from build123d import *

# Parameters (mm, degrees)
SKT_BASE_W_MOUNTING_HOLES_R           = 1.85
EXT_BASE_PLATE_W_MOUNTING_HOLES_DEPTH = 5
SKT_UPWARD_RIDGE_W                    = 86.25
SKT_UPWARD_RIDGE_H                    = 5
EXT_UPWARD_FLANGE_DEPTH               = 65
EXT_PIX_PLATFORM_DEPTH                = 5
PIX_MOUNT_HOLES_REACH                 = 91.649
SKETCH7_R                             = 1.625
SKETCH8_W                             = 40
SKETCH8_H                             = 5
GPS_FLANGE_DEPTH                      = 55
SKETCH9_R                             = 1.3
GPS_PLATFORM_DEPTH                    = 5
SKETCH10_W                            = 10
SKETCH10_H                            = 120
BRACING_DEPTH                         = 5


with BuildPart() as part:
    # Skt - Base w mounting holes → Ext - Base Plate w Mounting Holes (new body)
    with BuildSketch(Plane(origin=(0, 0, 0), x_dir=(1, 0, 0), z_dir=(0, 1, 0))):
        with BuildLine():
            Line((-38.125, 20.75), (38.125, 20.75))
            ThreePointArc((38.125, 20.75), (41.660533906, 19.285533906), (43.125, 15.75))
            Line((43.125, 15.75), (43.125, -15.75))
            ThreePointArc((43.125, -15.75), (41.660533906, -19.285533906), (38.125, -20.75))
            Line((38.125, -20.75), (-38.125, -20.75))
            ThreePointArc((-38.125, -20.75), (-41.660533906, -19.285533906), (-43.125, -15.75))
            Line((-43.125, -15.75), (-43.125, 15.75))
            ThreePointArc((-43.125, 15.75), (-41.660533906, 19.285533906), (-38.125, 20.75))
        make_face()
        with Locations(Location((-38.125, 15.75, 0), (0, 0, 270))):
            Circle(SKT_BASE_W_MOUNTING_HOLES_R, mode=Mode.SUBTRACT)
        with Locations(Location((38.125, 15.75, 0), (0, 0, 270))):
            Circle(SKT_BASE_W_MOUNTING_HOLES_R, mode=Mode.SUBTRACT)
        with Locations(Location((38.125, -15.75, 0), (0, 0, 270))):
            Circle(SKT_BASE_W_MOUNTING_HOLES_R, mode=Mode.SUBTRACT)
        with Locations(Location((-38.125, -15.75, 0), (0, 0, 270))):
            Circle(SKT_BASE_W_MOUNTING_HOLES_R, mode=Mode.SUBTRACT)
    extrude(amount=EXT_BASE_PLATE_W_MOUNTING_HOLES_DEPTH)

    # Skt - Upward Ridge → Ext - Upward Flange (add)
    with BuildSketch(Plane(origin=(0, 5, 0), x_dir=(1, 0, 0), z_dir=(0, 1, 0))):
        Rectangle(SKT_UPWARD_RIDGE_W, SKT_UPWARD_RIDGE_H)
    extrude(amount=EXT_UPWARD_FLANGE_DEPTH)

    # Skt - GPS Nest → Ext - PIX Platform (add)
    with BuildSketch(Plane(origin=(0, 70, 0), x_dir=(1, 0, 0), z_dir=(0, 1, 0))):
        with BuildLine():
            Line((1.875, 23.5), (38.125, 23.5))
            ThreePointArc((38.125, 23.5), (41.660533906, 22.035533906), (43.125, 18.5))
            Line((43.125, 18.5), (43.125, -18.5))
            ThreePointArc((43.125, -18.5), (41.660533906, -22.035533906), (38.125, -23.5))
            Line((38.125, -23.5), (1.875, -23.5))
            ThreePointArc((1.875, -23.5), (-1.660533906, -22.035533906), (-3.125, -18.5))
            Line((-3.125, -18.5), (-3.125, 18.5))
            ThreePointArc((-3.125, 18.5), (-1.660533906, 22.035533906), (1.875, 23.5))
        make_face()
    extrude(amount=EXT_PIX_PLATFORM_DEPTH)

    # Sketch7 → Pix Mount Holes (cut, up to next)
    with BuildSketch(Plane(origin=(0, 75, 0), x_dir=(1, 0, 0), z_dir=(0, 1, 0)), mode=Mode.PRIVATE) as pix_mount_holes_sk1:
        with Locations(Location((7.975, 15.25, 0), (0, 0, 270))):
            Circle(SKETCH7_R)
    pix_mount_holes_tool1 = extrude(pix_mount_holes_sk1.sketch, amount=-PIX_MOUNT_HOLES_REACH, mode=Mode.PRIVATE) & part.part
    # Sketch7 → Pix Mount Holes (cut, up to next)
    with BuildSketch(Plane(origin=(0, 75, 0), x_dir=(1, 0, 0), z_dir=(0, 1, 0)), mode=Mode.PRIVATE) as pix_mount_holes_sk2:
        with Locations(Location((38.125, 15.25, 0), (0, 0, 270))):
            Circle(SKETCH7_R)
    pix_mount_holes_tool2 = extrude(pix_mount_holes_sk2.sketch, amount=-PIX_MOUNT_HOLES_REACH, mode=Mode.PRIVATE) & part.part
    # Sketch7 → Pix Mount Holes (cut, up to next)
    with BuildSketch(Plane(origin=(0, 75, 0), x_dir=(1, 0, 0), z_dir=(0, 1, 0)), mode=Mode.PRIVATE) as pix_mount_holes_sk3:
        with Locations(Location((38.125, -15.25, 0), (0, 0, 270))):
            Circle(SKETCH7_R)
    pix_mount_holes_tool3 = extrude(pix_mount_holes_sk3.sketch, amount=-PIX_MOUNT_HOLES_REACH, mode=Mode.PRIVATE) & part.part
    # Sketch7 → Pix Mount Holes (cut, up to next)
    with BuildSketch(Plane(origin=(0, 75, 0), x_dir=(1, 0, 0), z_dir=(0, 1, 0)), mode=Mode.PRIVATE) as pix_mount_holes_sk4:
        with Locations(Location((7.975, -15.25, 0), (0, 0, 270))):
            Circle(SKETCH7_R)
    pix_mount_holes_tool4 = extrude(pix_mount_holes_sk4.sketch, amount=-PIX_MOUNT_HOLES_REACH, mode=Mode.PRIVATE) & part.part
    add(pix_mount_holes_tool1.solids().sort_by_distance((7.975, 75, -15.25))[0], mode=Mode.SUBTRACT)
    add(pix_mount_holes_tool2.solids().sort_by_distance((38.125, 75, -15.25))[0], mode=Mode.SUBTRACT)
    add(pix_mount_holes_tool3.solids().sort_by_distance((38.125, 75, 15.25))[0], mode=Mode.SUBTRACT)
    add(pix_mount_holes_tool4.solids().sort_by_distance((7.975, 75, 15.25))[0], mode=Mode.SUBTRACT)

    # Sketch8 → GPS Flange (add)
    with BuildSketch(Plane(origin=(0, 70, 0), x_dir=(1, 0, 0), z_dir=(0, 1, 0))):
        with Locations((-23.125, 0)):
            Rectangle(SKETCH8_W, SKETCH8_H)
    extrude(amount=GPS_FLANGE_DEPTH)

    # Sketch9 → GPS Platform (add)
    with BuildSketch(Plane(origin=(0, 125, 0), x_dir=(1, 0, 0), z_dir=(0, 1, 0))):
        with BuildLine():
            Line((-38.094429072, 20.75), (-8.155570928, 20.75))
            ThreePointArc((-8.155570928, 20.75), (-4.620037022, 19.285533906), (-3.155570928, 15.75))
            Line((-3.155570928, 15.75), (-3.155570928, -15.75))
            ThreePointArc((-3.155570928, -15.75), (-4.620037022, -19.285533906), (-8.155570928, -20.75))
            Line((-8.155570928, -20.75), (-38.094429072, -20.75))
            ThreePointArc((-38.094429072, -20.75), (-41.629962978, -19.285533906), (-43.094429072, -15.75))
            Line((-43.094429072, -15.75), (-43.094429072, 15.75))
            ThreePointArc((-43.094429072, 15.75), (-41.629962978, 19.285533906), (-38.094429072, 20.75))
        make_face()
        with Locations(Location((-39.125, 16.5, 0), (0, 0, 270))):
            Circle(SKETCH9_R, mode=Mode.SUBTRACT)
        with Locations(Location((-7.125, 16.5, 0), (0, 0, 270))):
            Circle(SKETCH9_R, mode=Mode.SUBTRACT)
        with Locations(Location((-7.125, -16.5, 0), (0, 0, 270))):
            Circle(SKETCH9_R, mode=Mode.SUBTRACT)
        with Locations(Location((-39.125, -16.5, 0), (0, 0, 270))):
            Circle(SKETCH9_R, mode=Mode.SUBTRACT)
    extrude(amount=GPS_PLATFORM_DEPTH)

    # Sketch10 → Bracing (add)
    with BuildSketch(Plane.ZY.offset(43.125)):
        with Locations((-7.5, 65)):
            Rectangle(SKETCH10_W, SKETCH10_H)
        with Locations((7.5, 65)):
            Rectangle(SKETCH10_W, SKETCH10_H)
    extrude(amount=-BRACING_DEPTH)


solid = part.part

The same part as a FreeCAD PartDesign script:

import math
import FreeCAD as App
import Part
import Sketcher
Q = App.Units.Quantity

doc = App.newDocument("Part")
body = doc.addObject("PartDesign::Body", "Body")

sketch1 = body.newObject("Sketcher::SketchObject", "Sketch")
sketch1.AttachmentSupport = (doc.getObject("XZ_Plane"), [""])
sketch1.MapMode = "FlatFace"
sketch1.addGeometry([
    Part.LineSegment(App.Vector(38.1, -20.8, 0), App.Vector(-38.1, -20.8, 0)),
    Part.ArcOfCircle(Part.Circle(App.Vector(-38.1, -15.8, 0), App.Vector(0, 0, 1), 5), math.radians(180), math.radians(270)),
    Part.LineSegment(App.Vector(-43.1, -15.8, 0), App.Vector(-43.1, 15.8, 0)),
    Part.ArcOfCircle(Part.Circle(App.Vector(-38.1, 15.8, 0), App.Vector(0, 0, 1), 5), math.radians(90), math.radians(180)),
    Part.LineSegment(App.Vector(-38.1, 20.8, 0), App.Vector(38.1, 20.8, 0)),
    Part.ArcOfCircle(Part.Circle(App.Vector(38.1, 15.8, 0), App.Vector(0, 0, 1), 5), math.radians(0), math.radians(90)),
    Part.LineSegment(App.Vector(43.1, 15.8, 0), App.Vector(43.1, -15.8, 0)),
    Part.ArcOfCircle(Part.Circle(App.Vector(38.1, -15.8, 0), App.Vector(0, 0, 1), 5), math.radians(-90), math.radians(0)),
    Part.Circle(App.Vector(38.1, 15.8, 0), App.Vector(0, 0, 1), 1.9),
    Part.Circle(App.Vector(-38.1, 15.8, 0), App.Vector(0, 0, 1), 1.9),
    Part.Circle(App.Vector(38.1, -15.8, 0), App.Vector(0, 0, 1), 1.9),
    Part.Circle(App.Vector(-38.1, -15.8, 0), App.Vector(0, 0, 1), 1.9),
], False)
sketch1.addConstraint([
    Sketcher.Constraint("Tangent", 0, 2, 1, 2),
    Sketcher.Constraint("Tangent", 1, 1, 2, 1),
    Sketcher.Constraint("Tangent", 2, 2, 3, 2),
    Sketcher.Constraint("Tangent", 3, 1, 4, 1),
    Sketcher.Constraint("Tangent", 4, 2, 5, 2),
    Sketcher.Constraint("Tangent", 5, 1, 6, 1),
    Sketcher.Constraint("Tangent", 6, 2, 7, 2),
    Sketcher.Constraint("Tangent", 7, 1, 0, 1),
    Sketcher.Constraint("Horizontal", 0),
    Sketcher.Constraint("Vertical", 2),
    Sketcher.Constraint("Horizontal", 4),
    Sketcher.Constraint("Vertical", 6),
    Sketcher.Constraint("Coincident", 8, 3, 5, 3),
    Sketcher.Constraint("Coincident", 9, 3, 3, 3),
    Sketcher.Constraint("Coincident", 10, 3, 7, 3),
    Sketcher.Constraint("Coincident", 11, 3, 1, 3),
    Sketcher.Constraint("Equal", 1, 3),
    Sketcher.Constraint("Equal", 3, 5),
    Sketcher.Constraint("Equal", 5, 7),
    Sketcher.Constraint("Equal", 8, 9),
    Sketcher.Constraint("Equal", 9, 10),
    Sketcher.Constraint("Equal", 10, 11),
    Sketcher.Constraint("Symmetric", 1, 3, 5, 3, -1, 1),
    Sketcher.Constraint("Radius", 1, Q("5 mm")),
    Sketcher.Constraint("Diameter", 8, Q("3.7 mm")),
    Sketcher.Constraint("DistanceY", 2, 1, 2, 2, Q("31.5 mm")),
    Sketcher.Constraint("DistanceX", 0, 2, 0, 1, Q("76.25 mm")),
])
pad1 = body.newObject("PartDesign::Pad", "Pad")
pad1.Profile = sketch1
pad1.Length = 5
pad1.Reversed = True

sketch2 = body.newObject("Sketcher::SketchObject", "Sketch001")
sketch2.AttachmentSupport = (doc.getObject("XZ_Plane"), [""])
sketch2.MapMode = "FlatFace"
sketch2.AttachmentOffset = App.Placement(App.Vector(0, 0, -5), App.Rotation())
sketch2.addGeometry([
    Part.LineSegment(App.Vector(-43, -2, 0), App.Vector(-43, 2, 0)),
    Part.LineSegment(App.Vector(-43, 2, 0), App.Vector(43, 2, 0)),
    Part.LineSegment(App.Vector(43, 2, 0), App.Vector(43, -2, 0)),
    Part.LineSegment(App.Vector(43, -2, 0), App.Vector(-43, -2, 0)),
], False)
sketch2.addConstraint([
    Sketcher.Constraint("Coincident", 0, 2, 1, 1),
    Sketcher.Constraint("Coincident", 1, 2, 2, 1),
    Sketcher.Constraint("Coincident", 2, 2, 3, 1),
    Sketcher.Constraint("Coincident", 3, 2, 0, 1),
    Sketcher.Constraint("Vertical", 0),
    Sketcher.Constraint("Horizontal", 1),
    Sketcher.Constraint("Vertical", 2),
    Sketcher.Constraint("Horizontal", 3),
    Sketcher.Constraint("Symmetric", 0, 2, 2, 2, -1, 1),
    Sketcher.Constraint("DistanceY", 0, 1, 0, 2, Q("5 mm")),
    Sketcher.Constraint("DistanceX", 1, 1, 1, 2, Q("86.25 mm")),
])
pad2 = body.newObject("PartDesign::Pad", "Pad001")
pad2.Profile = sketch2
pad2.Length = 65
pad2.Reversed = True

sketch3 = body.newObject("Sketcher::SketchObject", "Sketch002")
sketch3.AttachmentSupport = (doc.getObject("XZ_Plane"), [""])
sketch3.MapMode = "FlatFace"
sketch3.AttachmentOffset = App.Placement(App.Vector(0, 0, -70), App.Rotation())
sketch3.addGeometry([
    Part.LineSegment(App.Vector(38, -24, 0), App.Vector(2, -24, 0)),
    Part.ArcOfCircle(Part.Circle(App.Vector(2, -18, 0), App.Vector(0, 0, 1), 5), math.radians(180), math.radians(270)),
    Part.LineSegment(App.Vector(-3, -18, 0), App.Vector(-3, 18, 0)),
    Part.ArcOfCircle(Part.Circle(App.Vector(2, 18, 0), App.Vector(0, 0, 1), 5), math.radians(90), math.radians(180)),
    Part.LineSegment(App.Vector(2, 24, 0), App.Vector(38, 24, 0)),
    Part.ArcOfCircle(Part.Circle(App.Vector(38, 18, 0), App.Vector(0, 0, 1), 5), math.radians(0), math.radians(90)),
    Part.LineSegment(App.Vector(43, 18, 0), App.Vector(43, -18, 0)),
    Part.ArcOfCircle(Part.Circle(App.Vector(38, -18, 0), App.Vector(0, 0, 1), 5), math.radians(-90), math.radians(0)),
], False)
sketch3.addConstraint([
    Sketcher.Constraint("Tangent", 0, 2, 1, 2),
    Sketcher.Constraint("Tangent", 1, 1, 2, 1),
    Sketcher.Constraint("Tangent", 2, 2, 3, 2),
    Sketcher.Constraint("Tangent", 3, 1, 4, 1),
    Sketcher.Constraint("Tangent", 4, 2, 5, 2),
    Sketcher.Constraint("Tangent", 5, 1, 6, 1),
    Sketcher.Constraint("Tangent", 6, 2, 7, 2),
    Sketcher.Constraint("Tangent", 7, 1, 0, 1),
    Sketcher.Constraint("Horizontal", 0),
    Sketcher.Constraint("Vertical", 2),
    Sketcher.Constraint("Horizontal", 4),
    Sketcher.Constraint("Vertical", 6),
    Sketcher.Constraint("Equal", 1, 3),
    Sketcher.Constraint("Equal", 3, 5),
    Sketcher.Constraint("Equal", 5, 7),
    Sketcher.Constraint("Radius", 1, Q("5 mm")),
    Sketcher.Constraint("DistanceY", 2, 1, 2, 2, Q("37 mm")),
    Sketcher.Constraint("DistanceX", 0, 2, 0, 1, Q("36.25 mm")),
    Sketcher.Constraint("DistanceY", 1, 3, -1, 1, Q("18.5 mm")),
    Sketcher.Constraint("DistanceX", -1, 1, 1, 3, Q("1.875 mm")),
])
pad3 = body.newObject("PartDesign::Pad", "Pad002")
pad3.Profile = sketch3
pad3.Length = 5
pad3.Reversed = True

sketch4 = body.newObject("Sketcher::SketchObject", "Sketch003")
sketch4.AttachmentSupport = (doc.getObject("XZ_Plane"), [""])
sketch4.MapMode = "FlatFace"
sketch4.AttachmentOffset = App.Placement(App.Vector(0, 0, -75), App.Rotation())
sketch4.addGeometry(Part.Circle(App.Vector(8, -15.2, 0), App.Vector(0, 0, 1), 1.6), False)
sketch4.addConstraint([
    Sketcher.Constraint("Diameter", 0, Q("3.25 mm")),
    Sketcher.Constraint("DistanceY", 0, 3, -1, 1, Q("15.25 mm")),
    Sketcher.Constraint("DistanceX", -1, 1, 0, 3, Q("7.975 mm")),
])
pocket1 = body.newObject("PartDesign::Pocket", "Pocket")
pocket1.Profile = sketch4
pocket1.Type = "UpToFirst"
pocket1.Reversed = True

sketch5 = body.newObject("Sketcher::SketchObject", "Sketch004")
sketch5.AttachmentSupport = (doc.getObject("XZ_Plane"), [""])
sketch5.MapMode = "FlatFace"
sketch5.AttachmentOffset = App.Placement(App.Vector(0, 0, -75), App.Rotation())
sketch5.addGeometry(Part.Circle(App.Vector(38.1, -15.2, 0), App.Vector(0, 0, 1), 1.6), False)
sketch5.addConstraint([
    Sketcher.Constraint("Diameter", 0, Q("3.25 mm")),
    Sketcher.Constraint("DistanceY", 0, 3, -1, 1, Q("15.25 mm")),
    Sketcher.Constraint("DistanceX", -1, 1, 0, 3, Q("38.125 mm")),
])
pocket2 = body.newObject("PartDesign::Pocket", "Pocket001")
pocket2.Profile = sketch5
pocket2.Type = "UpToFirst"
pocket2.Reversed = True

sketch6 = body.newObject("Sketcher::SketchObject", "Sketch005")
sketch6.AttachmentSupport = (doc.getObject("XZ_Plane"), [""])
sketch6.MapMode = "FlatFace"
sketch6.AttachmentOffset = App.Placement(App.Vector(0, 0, -75), App.Rotation())
sketch6.addGeometry(Part.Circle(App.Vector(38.1, 15.2, 0), App.Vector(0, 0, 1), 1.6), False)
sketch6.addConstraint([
    Sketcher.Constraint("Diameter", 0, Q("3.25 mm")),
    Sketcher.Constraint("DistanceY", -1, 1, 0, 3, Q("15.25 mm")),
    Sketcher.Constraint("DistanceX", -1, 1, 0, 3, Q("38.125 mm")),
])
pocket3 = body.newObject("PartDesign::Pocket", "Pocket002")
pocket3.Profile = sketch6
pocket3.Type = "UpToFirst"
pocket3.Reversed = True

sketch7 = body.newObject("Sketcher::SketchObject", "Sketch006")
sketch7.AttachmentSupport = (doc.getObject("XZ_Plane"), [""])
sketch7.MapMode = "FlatFace"
sketch7.AttachmentOffset = App.Placement(App.Vector(0, 0, -75), App.Rotation())
sketch7.addGeometry(Part.Circle(App.Vector(8, 15.2, 0), App.Vector(0, 0, 1), 1.6), False)
sketch7.addConstraint([
    Sketcher.Constraint("Diameter", 0, Q("3.25 mm")),
    Sketcher.Constraint("DistanceY", -1, 1, 0, 3, Q("15.25 mm")),
    Sketcher.Constraint("DistanceX", -1, 1, 0, 3, Q("7.975 mm")),
])
pocket4 = body.newObject("PartDesign::Pocket", "Pocket003")
pocket4.Profile = sketch7
pocket4.Type = "UpToFirst"
pocket4.Reversed = True

sketch8 = body.newObject("Sketcher::SketchObject", "Sketch007")
sketch8.AttachmentSupport = (doc.getObject("XZ_Plane"), [""])
sketch8.MapMode = "FlatFace"
sketch8.AttachmentOffset = App.Placement(App.Vector(0, 0, -70), App.Rotation())
sketch8.addGeometry([
    Part.LineSegment(App.Vector(-43, -2, 0), App.Vector(-43, 2, 0)),
    Part.LineSegment(App.Vector(-43, 2, 0), App.Vector(-3, 2, 0)),
    Part.LineSegment(App.Vector(-3, 2, 0), App.Vector(-3, -2, 0)),
    Part.LineSegment(App.Vector(-3, -2, 0), App.Vector(-43, -2, 0)),
], False)
sketch8.addConstraint([
    Sketcher.Constraint("Coincident", 0, 2, 1, 1),
    Sketcher.Constraint("Coincident", 1, 2, 2, 1),
    Sketcher.Constraint("Coincident", 2, 2, 3, 1),
    Sketcher.Constraint("Coincident", 3, 2, 0, 1),
    Sketcher.Constraint("Vertical", 0),
    Sketcher.Constraint("Horizontal", 1),
    Sketcher.Constraint("Vertical", 2),
    Sketcher.Constraint("Horizontal", 3),
    Sketcher.Constraint("DistanceX", 1, 1, 1, 2, Q("40 mm")),
    Sketcher.Constraint("DistanceY", 0, 1, 0, 2, Q("5 mm")),
    Sketcher.Constraint("DistanceY", -1, 1, 0, 2, Q("2.5 mm")),
    Sketcher.Constraint("DistanceX", 0, 2, -1, 1, Q("43.125 mm")),
])
pad4 = body.newObject("PartDesign::Pad", "Pad003")
pad4.Profile = sketch8
pad4.Length = 55
pad4.Reversed = True

sketch9 = body.newObject("Sketcher::SketchObject", "Sketch008")
sketch9.AttachmentSupport = (doc.getObject("XZ_Plane"), [""])
sketch9.MapMode = "FlatFace"
sketch9.AttachmentOffset = App.Placement(App.Vector(0, 0, -125), App.Rotation())
sketch9.addGeometry([
    Part.LineSegment(App.Vector(-8.2, -20.8, 0), App.Vector(-38.1, -20.8, 0)),
    Part.ArcOfCircle(Part.Circle(App.Vector(-38.1, -15.8, 0), App.Vector(0, 0, 1), 5), math.radians(180), math.radians(270)),
    Part.LineSegment(App.Vector(-43.1, -15.8, 0), App.Vector(-43.1, 15.8, 0)),
    Part.ArcOfCircle(Part.Circle(App.Vector(-38.1, 15.8, 0), App.Vector(0, 0, 1), 5), math.radians(90), math.radians(180)),
    Part.LineSegment(App.Vector(-38.1, 20.8, 0), App.Vector(-8.2, 20.8, 0)),
    Part.ArcOfCircle(Part.Circle(App.Vector(-8.2, 15.8, 0), App.Vector(0, 0, 1), 5), math.radians(0), math.radians(90)),
    Part.LineSegment(App.Vector(-3.2, 15.8, 0), App.Vector(-3.2, -15.8, 0)),
    Part.ArcOfCircle(Part.Circle(App.Vector(-8.2, -15.8, 0), App.Vector(0, 0, 1), 5), math.radians(-90), math.radians(0)),
    Part.Circle(App.Vector(-7.1, 16.5, 0), App.Vector(0, 0, 1), 1.3),
    Part.Circle(App.Vector(-39.1, 16.5, 0), App.Vector(0, 0, 1), 1.3),
    Part.Circle(App.Vector(-7.1, -16.5, 0), App.Vector(0, 0, 1), 1.3),
    Part.Circle(App.Vector(-39.1, -16.5, 0), App.Vector(0, 0, 1), 1.3),
], False)
sketch9.addConstraint([
    Sketcher.Constraint("Tangent", 0, 2, 1, 2),
    Sketcher.Constraint("Tangent", 1, 1, 2, 1),
    Sketcher.Constraint("Tangent", 2, 2, 3, 2),
    Sketcher.Constraint("Tangent", 3, 1, 4, 1),
    Sketcher.Constraint("Tangent", 4, 2, 5, 2),
    Sketcher.Constraint("Tangent", 5, 1, 6, 1),
    Sketcher.Constraint("Tangent", 6, 2, 7, 2),
    Sketcher.Constraint("Tangent", 7, 1, 0, 1),
    Sketcher.Constraint("Horizontal", 0),
    Sketcher.Constraint("Vertical", 2),
    Sketcher.Constraint("Horizontal", 4),
    Sketcher.Constraint("Vertical", 6),
    Sketcher.Constraint("Equal", 1, 3),
    Sketcher.Constraint("Equal", 3, 5),
    Sketcher.Constraint("Equal", 5, 7),
    Sketcher.Constraint("Equal", 8, 9),
    Sketcher.Constraint("Equal", 9, 10),
    Sketcher.Constraint("Equal", 10, 11),
    Sketcher.Constraint("Symmetric", 8, 3, 10, 3, -1),
    Sketcher.Constraint("Symmetric", 9, 3, 11, 3, -1),
    Sketcher.Constraint("Horizontal", 8, 3, 9, 3),
    Sketcher.Constraint("Radius", 1, Q("5 mm")),
    Sketcher.Constraint("Diameter", 8, Q("2.6 mm")),
    Sketcher.Constraint("DistanceY", 2, 1, 2, 2, Q("31.5 mm")),
    Sketcher.Constraint("DistanceX", 9, 3, 8, 3, Q("32 mm")),
    Sketcher.Constraint("DistanceY", 10, 3, 8, 3, Q("33 mm")),
    Sketcher.Constraint("DistanceY", 1, 3, -1, 1, Q("15.75 mm")),
    Sketcher.Constraint("DistanceX", 8, 3, -1, 1, Q("7.125 mm")),
    Sketcher.Constraint("DistanceX", 0, 2, 0, 1, Q("29.938858 mm")),
    Sketcher.Constraint("DistanceX", 1, 3, -1, 1, Q("38.094429 mm")),
])
pad5 = body.newObject("PartDesign::Pad", "Pad004")
pad5.Profile = sketch9
pad5.Length = 5
pad5.Reversed = True

sketch10 = body.newObject("Sketcher::SketchObject", "Sketch009")
sketch10.AttachmentSupport = (doc.getObject("YZ_Plane"), [""])
sketch10.MapMode = "FlatFace"
sketch10.AttachmentOffset = App.Placement(App.Vector(0, 0, -43.125), App.Rotation())
sketch10.addGeometry([
    Part.LineSegment(App.Vector(125, -12, 0), App.Vector(5, -12, 0)),
    Part.LineSegment(App.Vector(5, -12, 0), App.Vector(5, -2, 0)),
    Part.LineSegment(App.Vector(5, -2, 0), App.Vector(125, -2, 0)),
    Part.LineSegment(App.Vector(125, -2, 0), App.Vector(125, -12, 0)),
    Part.LineSegment(App.Vector(125, 2, 0), App.Vector(5, 2, 0)),
    Part.LineSegment(App.Vector(5, 2, 0), App.Vector(5, 12, 0)),
    Part.LineSegment(App.Vector(5, 12, 0), App.Vector(125, 12, 0)),
    Part.LineSegment(App.Vector(125, 12, 0), App.Vector(125, 2, 0)),
], False)
sketch10.addConstraint([
    Sketcher.Constraint("Coincident", 0, 2, 1, 1),
    Sketcher.Constraint("Coincident", 1, 2, 2, 1),
    Sketcher.Constraint("Coincident", 2, 2, 3, 1),
    Sketcher.Constraint("Coincident", 3, 2, 0, 1),
    Sketcher.Constraint("Coincident", 4, 2, 5, 1),
    Sketcher.Constraint("Coincident", 5, 2, 6, 1),
    Sketcher.Constraint("Coincident", 6, 2, 7, 1),
    Sketcher.Constraint("Coincident", 7, 2, 4, 1),
    Sketcher.Constraint("Horizontal", 0),
    Sketcher.Constraint("Vertical", 1),
    Sketcher.Constraint("Horizontal", 2),
    Sketcher.Constraint("Vertical", 3),
    Sketcher.Constraint("Horizontal", 4),
    Sketcher.Constraint("Vertical", 5),
    Sketcher.Constraint("Horizontal", 6),
    Sketcher.Constraint("Vertical", 7),
    Sketcher.Constraint("Symmetric", 1, 2, 4, 2, -1),
    Sketcher.Constraint("Symmetric", 3, 2, 6, 2, -1),
    Sketcher.Constraint("DistanceX", 0, 2, 0, 1, Q("120 mm")),
    Sketcher.Constraint("DistanceY", 1, 1, 1, 2, Q("10 mm")),
    Sketcher.Constraint("DistanceX", -1, 1, 0, 2, Q("5 mm")),
    Sketcher.Constraint("DistanceY", 1, 2, 4, 2, Q("5 mm")),
])
pad6 = body.newObject("PartDesign::Pad", "Pad005")
pad6.Profile = sketch10
pad6.Length = 5

doc.recompute()
